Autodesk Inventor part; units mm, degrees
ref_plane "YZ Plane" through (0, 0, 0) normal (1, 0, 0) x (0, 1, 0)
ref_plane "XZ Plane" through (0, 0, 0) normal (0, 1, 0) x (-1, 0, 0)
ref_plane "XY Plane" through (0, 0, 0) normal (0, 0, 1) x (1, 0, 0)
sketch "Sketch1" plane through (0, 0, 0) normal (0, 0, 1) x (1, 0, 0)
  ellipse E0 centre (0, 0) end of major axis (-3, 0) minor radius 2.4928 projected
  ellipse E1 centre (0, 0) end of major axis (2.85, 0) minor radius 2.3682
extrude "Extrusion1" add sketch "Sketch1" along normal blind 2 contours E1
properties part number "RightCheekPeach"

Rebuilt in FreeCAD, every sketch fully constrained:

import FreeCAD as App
import Part
import Sketcher
from FreeCAD import Vector

doc = App.newDocument("Part")
body = doc.addObject("PartDesign::Body", "Body")

# Sketch on XY plane
sketch1 = doc.addObject("Sketcher::SketchObject", "Sketch")
body.addObject(sketch1)
sketch1.AttachmentSupport = (doc.XY_Plane, [""])
sketch1.MapMode = "FlatFace"
sketch1.addGeometry(Part.Ellipse(Vector(2.85, 0, 0), Vector(0, 2.3682, 0), Vector(0, 0, 0)), False)
sketch1.addConstraint(Sketcher.Constraint("Block", 0))
pad1 = doc.addObject("PartDesign::Pad", "Pad")
body.addObject(pad1)
pad1.Profile = sketch1
pad1.Length = 2

doc.recompute()
